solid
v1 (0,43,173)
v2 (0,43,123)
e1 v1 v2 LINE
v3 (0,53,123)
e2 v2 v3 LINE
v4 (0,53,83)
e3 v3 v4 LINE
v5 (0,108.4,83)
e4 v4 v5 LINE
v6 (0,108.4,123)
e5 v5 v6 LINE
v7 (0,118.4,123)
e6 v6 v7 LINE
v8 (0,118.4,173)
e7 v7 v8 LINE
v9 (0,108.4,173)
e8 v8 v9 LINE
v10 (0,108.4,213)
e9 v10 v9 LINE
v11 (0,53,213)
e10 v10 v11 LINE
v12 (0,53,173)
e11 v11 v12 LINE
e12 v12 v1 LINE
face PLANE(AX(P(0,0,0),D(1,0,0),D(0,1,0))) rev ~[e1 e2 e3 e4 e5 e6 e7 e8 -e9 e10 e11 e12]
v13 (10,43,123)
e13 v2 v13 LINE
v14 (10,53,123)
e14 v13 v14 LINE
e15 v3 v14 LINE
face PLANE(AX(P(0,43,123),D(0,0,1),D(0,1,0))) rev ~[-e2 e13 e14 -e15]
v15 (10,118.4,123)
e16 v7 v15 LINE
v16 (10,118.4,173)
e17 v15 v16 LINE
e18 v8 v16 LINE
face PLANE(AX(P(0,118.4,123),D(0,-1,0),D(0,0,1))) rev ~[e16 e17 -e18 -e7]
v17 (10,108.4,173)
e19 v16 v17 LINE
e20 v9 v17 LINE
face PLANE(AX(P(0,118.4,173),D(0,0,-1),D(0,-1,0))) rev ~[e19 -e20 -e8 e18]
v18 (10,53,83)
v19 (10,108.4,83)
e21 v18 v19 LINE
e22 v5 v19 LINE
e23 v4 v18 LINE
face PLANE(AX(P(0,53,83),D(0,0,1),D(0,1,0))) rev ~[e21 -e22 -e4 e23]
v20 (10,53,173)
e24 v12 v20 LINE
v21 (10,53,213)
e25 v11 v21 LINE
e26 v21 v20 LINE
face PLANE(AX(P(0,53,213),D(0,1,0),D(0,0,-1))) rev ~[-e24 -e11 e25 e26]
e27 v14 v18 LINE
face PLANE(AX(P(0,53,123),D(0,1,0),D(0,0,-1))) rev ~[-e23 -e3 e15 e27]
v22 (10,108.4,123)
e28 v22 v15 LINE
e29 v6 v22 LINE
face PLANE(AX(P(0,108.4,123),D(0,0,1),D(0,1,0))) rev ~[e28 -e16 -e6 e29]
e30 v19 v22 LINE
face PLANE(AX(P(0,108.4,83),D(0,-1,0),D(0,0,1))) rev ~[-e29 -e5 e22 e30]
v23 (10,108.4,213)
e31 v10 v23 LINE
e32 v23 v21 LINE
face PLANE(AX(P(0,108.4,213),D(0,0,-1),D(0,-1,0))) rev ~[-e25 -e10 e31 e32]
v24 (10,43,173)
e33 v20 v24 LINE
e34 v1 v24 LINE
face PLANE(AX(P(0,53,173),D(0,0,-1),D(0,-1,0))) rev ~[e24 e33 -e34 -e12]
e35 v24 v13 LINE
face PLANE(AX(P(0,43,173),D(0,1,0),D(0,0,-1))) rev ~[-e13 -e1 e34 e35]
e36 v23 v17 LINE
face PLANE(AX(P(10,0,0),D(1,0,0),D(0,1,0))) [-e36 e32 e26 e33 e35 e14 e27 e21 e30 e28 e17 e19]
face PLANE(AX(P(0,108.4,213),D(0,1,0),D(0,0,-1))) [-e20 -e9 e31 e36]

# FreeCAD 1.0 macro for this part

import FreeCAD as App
import Part
import Sketcher

doc = App.newDocument("Part")
body = doc.addObject("PartDesign::Body", "Body")

# Sketch on YZ plane
sketch1 = doc.addObject("Sketcher::SketchObject", "Sketch")
body.addObject(sketch1)
sketch1.AttachmentSupport = (doc.YZ_Plane, [""])
sketch1.MapMode = "FlatFace"
sketch1.addGeometry(Part.LineSegment(App.Vector(108, 173, 0), App.Vector(108, 213, 0)), False)
sketch1.addGeometry(Part.LineSegment(App.Vector(108, 213, 0), App.Vector(53, 213, 0)), False)
sketch1.addGeometry(Part.LineSegment(App.Vector(53, 213, 0), App.Vector(53, 173, 0)), False)
sketch1.addGeometry(Part.LineSegment(App.Vector(53, 173, 0), App.Vector(43, 173, 0)), False)
sketch1.addGeometry(Part.LineSegment(App.Vector(43, 173, 0), App.Vector(43, 123, 0)), False)
sketch1.addGeometry(Part.LineSegment(App.Vector(43, 123, 0), App.Vector(53, 123, 0)), False)
sketch1.addGeometry(Part.LineSegment(App.Vector(53, 123, 0), App.Vector(53, 83, 0)), False)
sketch1.addGeometry(Part.LineSegment(App.Vector(53, 83, 0), App.Vector(108, 83, 0)), False)
sketch1.addGeometry(Part.LineSegment(App.Vector(108, 83, 0), App.Vector(108, 123, 0)), False)
sketch1.addGeometry(Part.LineSegment(App.Vector(108, 123, 0), App.Vector(118, 123, 0)), False)
sketch1.addGeometry(Part.LineSegment(App.Vector(118, 123, 0), App.Vector(118, 173, 0)), False)
sketch1.addGeometry(Part.LineSegment(App.Vector(118, 173, 0), App.Vector(108, 173, 0)), False)
sketch1.addConstraint(Sketcher.Constraint("Coincident", 0, 2, 1, 1))
sketch1.addConstraint(Sketcher.Constraint("Coincident", 1, 2, 2, 1))
sketch1.addConstraint(Sketcher.Constraint("Coincident", 2, 2, 3, 1))
sketch1.addConstraint(Sketcher.Constraint("Coincident", 3, 2, 4, 1))
sketch1.addConstraint(Sketcher.Constraint("Coincident", 4, 2, 5, 1))
sketch1.addConstraint(Sketcher.Constraint("Coincident", 5, 2, 6, 1))
sketch1.addConstraint(Sketcher.Constraint("Coincident", 6, 2, 7, 1))
sketch1.addConstraint(Sketcher.Constraint("Coincident", 7, 2, 8, 1))
sketch1.addConstraint(Sketcher.Constraint("Coincident", 8, 2, 9, 1))
sketch1.addConstraint(Sketcher.Constraint("Coincident", 9, 2, 10, 1))
sketch1.addConstraint(Sketcher.Constraint("Coincident", 10, 2, 11, 1))
sketch1.addConstraint(Sketcher.Constraint("Coincident", 11, 2, 0, 1))
sketch1.addConstraint(Sketcher.Constraint("Vertical", 0))
sketch1.addConstraint(Sketcher.Constraint("Horizontal", 1))
sketch1.addConstraint(Sketcher.Constraint("Vertical", 2))
sketch1.addConstraint(Sketcher.Constraint("Horizontal", 3))
sketch1.addConstraint(Sketcher.Constraint("Vertical", 4))
sketch1.addConstraint(Sketcher.Constraint("Horizontal", 5))
sketch1.addConstraint(Sketcher.Constraint("Vertical", 6))
sketch1.addConstraint(Sketcher.Constraint("Horizontal", 7))
sketch1.addConstraint(Sketcher.Constraint("Vertical", 8))
sketch1.addConstraint(Sketcher.Constraint("Horizontal", 9))
sketch1.addConstraint(Sketcher.Constraint("Vertical", 10))
sketch1.addConstraint(Sketcher.Constraint("Horizontal", 11))
sketch1.addConstraint(Sketcher.Constraint("Horizontal", 5, 2, 8, 2))
sketch1.addConstraint(Sketcher.Constraint("Horizontal", 3, 2, 10, 2))
sketch1.addConstraint(Sketcher.Constraint("Vertical", 2, 2, 5, 2))
sketch1.addConstraint(Sketcher.Constraint("Vertical", 0, 2, 7, 2))
sketch1.addConstraint(Sketcher.Constraint("Equal", 5, 9))
sketch1.addConstraint(Sketcher.Constraint("Equal", 2, 6))
sketch1.addConstraint(Sketcher.Constraint("DistanceX", 3, 2, 3, 1, 10.0))
sketch1.addConstraint(Sketcher.Constraint("DistanceY", 4, 2, 4, 1, 50.0))
sketch1.addConstraint(Sketcher.Constraint("DistanceX", 1, 2, 1, 1, 55.4))
sketch1.addConstraint(Sketcher.Constraint("DistanceY", 6, 2, 1, 2, 130.0))
sketch1.addConstraint(Sketcher.Constraint("DistanceY", -1, 1, 0, 2, 213.0))
sketch1.addConstraint(Sketcher.Constraint("DistanceX", -1, 1, 1, 2, 53.0))
pad1 = doc.addObject("PartDesign::Pad", "Pad")
body.addObject(pad1)
pad1.Profile = sketch1
pad1.Length = 10

doc.recompute()
